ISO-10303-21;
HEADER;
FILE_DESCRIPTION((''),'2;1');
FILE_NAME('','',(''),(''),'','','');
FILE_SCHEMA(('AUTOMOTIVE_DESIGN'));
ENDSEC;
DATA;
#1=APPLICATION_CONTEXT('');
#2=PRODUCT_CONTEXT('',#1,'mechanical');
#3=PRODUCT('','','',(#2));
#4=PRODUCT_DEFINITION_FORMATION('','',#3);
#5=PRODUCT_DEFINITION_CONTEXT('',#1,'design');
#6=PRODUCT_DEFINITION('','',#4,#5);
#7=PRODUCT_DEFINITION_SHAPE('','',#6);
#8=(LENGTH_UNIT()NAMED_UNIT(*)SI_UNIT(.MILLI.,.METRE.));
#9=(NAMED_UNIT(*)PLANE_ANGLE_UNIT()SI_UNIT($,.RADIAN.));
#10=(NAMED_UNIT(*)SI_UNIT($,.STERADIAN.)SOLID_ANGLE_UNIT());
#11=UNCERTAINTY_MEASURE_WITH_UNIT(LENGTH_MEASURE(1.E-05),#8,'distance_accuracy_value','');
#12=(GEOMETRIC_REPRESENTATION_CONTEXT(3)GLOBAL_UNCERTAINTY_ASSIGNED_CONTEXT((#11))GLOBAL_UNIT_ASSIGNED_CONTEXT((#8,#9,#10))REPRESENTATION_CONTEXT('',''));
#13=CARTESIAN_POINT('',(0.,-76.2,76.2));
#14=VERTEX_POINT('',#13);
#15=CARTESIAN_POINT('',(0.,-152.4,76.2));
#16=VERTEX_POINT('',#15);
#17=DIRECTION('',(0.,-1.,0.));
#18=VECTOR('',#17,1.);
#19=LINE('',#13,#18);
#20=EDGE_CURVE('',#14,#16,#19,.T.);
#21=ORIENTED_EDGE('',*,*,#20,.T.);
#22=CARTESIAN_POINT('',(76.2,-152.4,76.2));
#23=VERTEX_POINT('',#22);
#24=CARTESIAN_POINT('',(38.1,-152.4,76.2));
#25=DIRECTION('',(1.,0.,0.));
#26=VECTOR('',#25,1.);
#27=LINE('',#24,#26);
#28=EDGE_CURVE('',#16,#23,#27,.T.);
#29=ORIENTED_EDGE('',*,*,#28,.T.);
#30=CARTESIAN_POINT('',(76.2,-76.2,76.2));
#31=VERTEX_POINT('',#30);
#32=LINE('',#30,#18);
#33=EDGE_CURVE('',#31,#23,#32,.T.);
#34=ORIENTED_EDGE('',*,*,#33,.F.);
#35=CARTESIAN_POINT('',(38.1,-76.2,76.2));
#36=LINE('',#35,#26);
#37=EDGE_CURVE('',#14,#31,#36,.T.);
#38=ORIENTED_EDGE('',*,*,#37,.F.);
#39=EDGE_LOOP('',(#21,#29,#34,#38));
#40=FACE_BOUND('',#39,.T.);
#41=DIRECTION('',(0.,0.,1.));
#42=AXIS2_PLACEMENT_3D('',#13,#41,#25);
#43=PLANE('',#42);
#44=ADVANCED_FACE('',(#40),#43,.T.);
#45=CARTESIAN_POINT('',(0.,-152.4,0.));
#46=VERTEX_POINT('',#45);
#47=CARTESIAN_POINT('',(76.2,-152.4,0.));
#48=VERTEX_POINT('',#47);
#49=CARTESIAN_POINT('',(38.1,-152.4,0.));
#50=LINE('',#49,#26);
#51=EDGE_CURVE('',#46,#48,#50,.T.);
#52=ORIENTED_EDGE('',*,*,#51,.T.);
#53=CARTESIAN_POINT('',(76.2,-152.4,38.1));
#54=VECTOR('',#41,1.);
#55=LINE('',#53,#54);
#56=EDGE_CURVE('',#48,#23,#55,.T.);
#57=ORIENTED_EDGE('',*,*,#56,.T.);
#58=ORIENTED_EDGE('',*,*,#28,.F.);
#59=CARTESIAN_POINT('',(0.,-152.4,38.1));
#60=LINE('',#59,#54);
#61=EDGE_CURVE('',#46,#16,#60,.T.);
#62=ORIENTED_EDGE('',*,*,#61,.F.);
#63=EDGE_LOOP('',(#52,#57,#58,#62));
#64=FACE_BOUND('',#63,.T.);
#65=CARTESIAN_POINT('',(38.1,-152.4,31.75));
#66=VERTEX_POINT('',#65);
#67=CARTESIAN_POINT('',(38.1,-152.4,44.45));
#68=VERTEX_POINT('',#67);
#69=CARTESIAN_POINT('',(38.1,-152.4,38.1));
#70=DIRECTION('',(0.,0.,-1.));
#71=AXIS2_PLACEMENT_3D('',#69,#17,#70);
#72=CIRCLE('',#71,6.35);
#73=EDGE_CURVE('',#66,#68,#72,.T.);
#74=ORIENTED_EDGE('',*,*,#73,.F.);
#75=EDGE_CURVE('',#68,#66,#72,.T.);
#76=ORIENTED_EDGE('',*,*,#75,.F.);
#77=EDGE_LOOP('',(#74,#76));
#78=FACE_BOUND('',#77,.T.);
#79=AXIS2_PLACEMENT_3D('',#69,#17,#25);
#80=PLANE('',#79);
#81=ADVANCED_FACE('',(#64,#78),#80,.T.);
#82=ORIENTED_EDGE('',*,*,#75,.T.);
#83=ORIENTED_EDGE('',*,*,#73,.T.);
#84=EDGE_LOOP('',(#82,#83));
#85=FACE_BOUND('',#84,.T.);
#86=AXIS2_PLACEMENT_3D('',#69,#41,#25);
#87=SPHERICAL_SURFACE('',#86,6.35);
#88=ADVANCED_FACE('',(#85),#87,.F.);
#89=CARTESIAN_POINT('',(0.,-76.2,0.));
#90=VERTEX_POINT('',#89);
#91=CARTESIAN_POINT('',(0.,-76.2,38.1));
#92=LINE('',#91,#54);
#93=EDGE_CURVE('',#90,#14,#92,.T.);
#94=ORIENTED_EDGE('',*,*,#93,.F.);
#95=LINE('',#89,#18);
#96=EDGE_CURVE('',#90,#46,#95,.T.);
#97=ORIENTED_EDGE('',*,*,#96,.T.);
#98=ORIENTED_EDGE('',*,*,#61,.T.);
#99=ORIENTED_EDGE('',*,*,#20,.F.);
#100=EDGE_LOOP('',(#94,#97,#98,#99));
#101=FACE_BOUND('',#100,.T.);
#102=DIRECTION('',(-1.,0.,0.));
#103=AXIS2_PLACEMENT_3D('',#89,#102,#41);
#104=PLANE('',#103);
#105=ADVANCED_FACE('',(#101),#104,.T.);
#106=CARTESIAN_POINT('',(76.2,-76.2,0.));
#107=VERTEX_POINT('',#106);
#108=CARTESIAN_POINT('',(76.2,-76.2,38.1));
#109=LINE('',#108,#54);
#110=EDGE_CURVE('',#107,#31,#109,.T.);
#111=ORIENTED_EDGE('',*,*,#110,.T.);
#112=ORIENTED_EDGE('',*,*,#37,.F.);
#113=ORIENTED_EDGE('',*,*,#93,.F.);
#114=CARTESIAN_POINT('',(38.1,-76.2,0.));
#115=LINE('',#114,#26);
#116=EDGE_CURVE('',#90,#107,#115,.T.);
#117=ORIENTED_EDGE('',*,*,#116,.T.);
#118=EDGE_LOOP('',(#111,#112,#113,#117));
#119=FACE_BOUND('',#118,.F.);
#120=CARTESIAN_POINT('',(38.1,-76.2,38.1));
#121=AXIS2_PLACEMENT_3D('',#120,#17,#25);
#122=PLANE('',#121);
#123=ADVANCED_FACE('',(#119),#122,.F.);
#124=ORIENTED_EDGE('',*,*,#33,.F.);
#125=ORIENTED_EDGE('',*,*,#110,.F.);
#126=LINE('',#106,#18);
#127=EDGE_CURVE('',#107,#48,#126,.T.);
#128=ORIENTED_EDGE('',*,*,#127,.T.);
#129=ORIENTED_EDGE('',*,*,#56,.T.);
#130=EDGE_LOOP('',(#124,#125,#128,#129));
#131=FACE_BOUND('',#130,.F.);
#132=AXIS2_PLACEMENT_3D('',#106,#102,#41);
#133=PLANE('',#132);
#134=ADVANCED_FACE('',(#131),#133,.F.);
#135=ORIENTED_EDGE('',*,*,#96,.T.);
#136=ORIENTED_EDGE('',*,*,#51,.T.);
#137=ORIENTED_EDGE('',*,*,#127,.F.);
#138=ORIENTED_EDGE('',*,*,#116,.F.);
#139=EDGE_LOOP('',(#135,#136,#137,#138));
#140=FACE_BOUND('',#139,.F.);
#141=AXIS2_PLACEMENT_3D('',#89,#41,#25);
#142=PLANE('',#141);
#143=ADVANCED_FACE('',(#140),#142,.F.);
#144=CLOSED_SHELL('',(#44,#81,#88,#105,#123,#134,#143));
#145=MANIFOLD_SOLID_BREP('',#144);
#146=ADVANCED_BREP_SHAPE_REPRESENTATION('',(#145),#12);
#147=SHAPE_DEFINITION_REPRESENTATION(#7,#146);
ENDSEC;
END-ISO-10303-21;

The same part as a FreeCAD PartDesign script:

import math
import FreeCAD as App
import Part
import Sketcher
from FreeCAD import Vector
Q = App.Units.Quantity

doc = App.newDocument("Part")
body = doc.addObject("PartDesign::Body", "Body")

# Sketch on XZ plane
sketch1 = body.newObject("Sketcher::SketchObject", "Sketch")
sketch1.AttachmentSupport = (doc.getObject("XZ_Plane"), [""])
sketch1.MapMode = "FlatFace"
sketch1.AttachmentOffset = App.Placement(Vector(0, 0, 3 * 25.4), App.Rotation())
sketch1.addGeometry([
    Part.LineSegment(Vector(0, 76.2, 0), Vector(0, 0, 0)),
    Part.LineSegment(Vector(0, 0, 0), Vector(76.2, 0, 0)),
    Part.LineSegment(Vector(76.2, 0, 0), Vector(76.2, 76.2, 0)),
    Part.LineSegment(Vector(76.2, 76.2, 0), Vector(0, 76.2, 0)),
], False)
sketch1.addConstraint([
    Sketcher.Constraint("Coincident", 0, 2, 1, 1),
    Sketcher.Constraint("Coincident", 1, 2, 2, 1),
    Sketcher.Constraint("Coincident", 2, 2, 3, 1),
    Sketcher.Constraint("Coincident", 3, 2, 0, 1),
    Sketcher.Constraint("Vertical", 0),
    Sketcher.Constraint("Horizontal", 1),
    Sketcher.Constraint("Vertical", 2),
    Sketcher.Constraint("Horizontal", 3),
    Sketcher.Constraint("Coincident", 0, 2, -1, 1),
    Sketcher.Constraint("Equal", 3, 0),
    Sketcher.Constraint("DistanceX", 1, 1, 1, 2, Q("3 in")),
])
pad1 = body.newObject("PartDesign::Pad", "Pad")
pad1.Profile = sketch1
pad1.Length = Q("3 in")

# Sketch on XZ plane
sketch2 = body.newObject("Sketcher::SketchObject", "Sketch001")
sketch2.AttachmentSupport = (doc.getObject("XZ_Plane"), [""])
sketch2.MapMode = "FlatFace"
sketch2.AttachmentOffset = App.Placement(Vector(0, 0, 6 * 25.4), App.Rotation())
sketch2.addGeometry([
    Part.ArcOfCircle(Part.Circle(Vector(38.1, 38.1, 0), Vector(0, 0, 1), 6.35), math.radians(-90), math.radians(90)),
    Part.LineSegment(Vector(38.1, 44.45, 0), Vector(38.1, 31.75, 0)),
], False)
sketch2.addGeometry(Part.LineSegment(Vector(38.1, 44.45, 0), Vector(38.1, 31.75, 0)), True)  # axis
sketch2.addConstraint([
    Sketcher.Constraint("Coincident", 0, 1, 1, 2),
    Sketcher.Constraint("Coincident", 1, 1, 0, 2),
    Sketcher.Constraint("Vertical", 1),
    Sketcher.Constraint("Vertical", 2),
    Sketcher.Constraint("Coincident", 2, 1, 1, 1),
    Sketcher.Constraint("Equal", 1, 2),
    Sketcher.Constraint("Radius", 0, Q("0.25 in")),
    Sketcher.Constraint("DistanceX", -1, 1, 0, 3, Q("1.5 in")),
    Sketcher.Constraint("DistanceY", -1, 1, 0, 3, Q("1.5 in")),
    Sketcher.Constraint("DistanceX", -1, 1, 0, 1, Q("1.5 in")),
])
groove = body.newObject("PartDesign::Groove", "Groove")
groove.Profile = sketch2
groove.ReferenceAxis = (sketch2, ["Axis0"])
groove.Angle = 360

doc.recompute()
